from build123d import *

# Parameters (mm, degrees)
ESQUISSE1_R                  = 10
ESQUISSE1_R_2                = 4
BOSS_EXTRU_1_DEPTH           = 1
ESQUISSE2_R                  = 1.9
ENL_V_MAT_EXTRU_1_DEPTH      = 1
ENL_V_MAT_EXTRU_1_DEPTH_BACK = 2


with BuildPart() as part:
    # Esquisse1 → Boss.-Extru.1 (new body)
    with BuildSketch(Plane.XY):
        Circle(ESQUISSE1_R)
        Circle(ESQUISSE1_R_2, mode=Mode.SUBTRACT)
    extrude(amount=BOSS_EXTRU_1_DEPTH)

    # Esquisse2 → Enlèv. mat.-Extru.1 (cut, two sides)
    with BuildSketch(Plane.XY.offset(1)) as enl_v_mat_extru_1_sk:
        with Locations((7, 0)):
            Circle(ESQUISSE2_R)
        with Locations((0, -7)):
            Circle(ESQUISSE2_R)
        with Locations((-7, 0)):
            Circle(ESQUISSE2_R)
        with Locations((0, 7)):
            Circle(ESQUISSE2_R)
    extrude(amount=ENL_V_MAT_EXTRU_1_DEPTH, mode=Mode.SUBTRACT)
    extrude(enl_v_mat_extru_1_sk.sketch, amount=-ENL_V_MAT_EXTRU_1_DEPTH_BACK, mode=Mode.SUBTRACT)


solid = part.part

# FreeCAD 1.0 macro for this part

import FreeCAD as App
import Part
import Sketcher

doc = App.newDocument("Part")
body = doc.addObject("PartDesign::Body", "Body")

sketch1 = body.newObject("Sketcher::SketchObject", "Sketch")
sketch1.AttachmentSupport = (doc.getObject("XY_Plane"), [""])
sketch1.MapMode = "FlatFace"
sketch1.addGeometry([
    Part.Circle(App.Vector(0, 0, 0), App.Vector(0, 0, 1), 10),
    Part.Circle(App.Vector(0, 0, 0), App.Vector(0, 0, 1), 4),
], False)
sketch1.addConstraint([
    Sketcher.Constraint("Coincident", 0, 3, -1, 1),
    Sketcher.Constraint("Coincident", 1, 3, -1, 1),
    Sketcher.Constraint("Diameter", 0, 20.0),
    Sketcher.Constraint("Diameter", 1, 8.0),
])
pad1 = body.newObject("PartDesign::Pad", "Pad")
pad1.Profile = sketch1
pad1.Length = 1

sketch2 = body.newObject("Sketcher::SketchObject", "Sketch001")
sketch2.AttachmentSupport = (doc.getObject("XY_Plane"), [""])
sketch2.MapMode = "FlatFace"
sketch2.AttachmentOffset = App.Placement(App.Vector(0, 0, 1), App.Rotation())
sketch2.addGeometry([
    Part.Circle(App.Vector(7, 0, 0), App.Vector(0, 0, 1), 1.9),
    Part.Circle(App.Vector(0, -7, 0), App.Vector(0, 0, 1), 1.9),
    Part.Circle(App.Vector(-7, 0, 0), App.Vector(0, 0, 1), 1.9),
    Part.Circle(App.Vector(0, 7, 0), App.Vector(0, 0, 1), 1.9),
], False)
sketch2.addConstraint([
    Sketcher.Constraint("Equal", 0, 1),
    Sketcher.Constraint("Equal", 1, 2),
    Sketcher.Constraint("Equal", 2, 3),
    Sketcher.Constraint("Symmetric", 0, 3, 2, 3, -1, 1),
    Sketcher.Constraint("Symmetric", 1, 3, 3, 3, -1, 1),
    Sketcher.Constraint("PointOnObject", 0, 3, -1),
    Sketcher.Constraint("PointOnObject", 1, 3, -2),
    Sketcher.Constraint("Diameter", 0, 3.8),
    Sketcher.Constraint("DistanceX", -1, 1, 0, 3, 7.0),
    Sketcher.Constraint("DistanceY", 1, 3, -1, 1, 7.0),
])
pocket1 = body.newObject("PartDesign::Pocket", "Pocket")
pocket1.Profile = sketch2
pocket1.Type = "ThroughAll"
pocket1.Midplane = True

doc.recompute()
